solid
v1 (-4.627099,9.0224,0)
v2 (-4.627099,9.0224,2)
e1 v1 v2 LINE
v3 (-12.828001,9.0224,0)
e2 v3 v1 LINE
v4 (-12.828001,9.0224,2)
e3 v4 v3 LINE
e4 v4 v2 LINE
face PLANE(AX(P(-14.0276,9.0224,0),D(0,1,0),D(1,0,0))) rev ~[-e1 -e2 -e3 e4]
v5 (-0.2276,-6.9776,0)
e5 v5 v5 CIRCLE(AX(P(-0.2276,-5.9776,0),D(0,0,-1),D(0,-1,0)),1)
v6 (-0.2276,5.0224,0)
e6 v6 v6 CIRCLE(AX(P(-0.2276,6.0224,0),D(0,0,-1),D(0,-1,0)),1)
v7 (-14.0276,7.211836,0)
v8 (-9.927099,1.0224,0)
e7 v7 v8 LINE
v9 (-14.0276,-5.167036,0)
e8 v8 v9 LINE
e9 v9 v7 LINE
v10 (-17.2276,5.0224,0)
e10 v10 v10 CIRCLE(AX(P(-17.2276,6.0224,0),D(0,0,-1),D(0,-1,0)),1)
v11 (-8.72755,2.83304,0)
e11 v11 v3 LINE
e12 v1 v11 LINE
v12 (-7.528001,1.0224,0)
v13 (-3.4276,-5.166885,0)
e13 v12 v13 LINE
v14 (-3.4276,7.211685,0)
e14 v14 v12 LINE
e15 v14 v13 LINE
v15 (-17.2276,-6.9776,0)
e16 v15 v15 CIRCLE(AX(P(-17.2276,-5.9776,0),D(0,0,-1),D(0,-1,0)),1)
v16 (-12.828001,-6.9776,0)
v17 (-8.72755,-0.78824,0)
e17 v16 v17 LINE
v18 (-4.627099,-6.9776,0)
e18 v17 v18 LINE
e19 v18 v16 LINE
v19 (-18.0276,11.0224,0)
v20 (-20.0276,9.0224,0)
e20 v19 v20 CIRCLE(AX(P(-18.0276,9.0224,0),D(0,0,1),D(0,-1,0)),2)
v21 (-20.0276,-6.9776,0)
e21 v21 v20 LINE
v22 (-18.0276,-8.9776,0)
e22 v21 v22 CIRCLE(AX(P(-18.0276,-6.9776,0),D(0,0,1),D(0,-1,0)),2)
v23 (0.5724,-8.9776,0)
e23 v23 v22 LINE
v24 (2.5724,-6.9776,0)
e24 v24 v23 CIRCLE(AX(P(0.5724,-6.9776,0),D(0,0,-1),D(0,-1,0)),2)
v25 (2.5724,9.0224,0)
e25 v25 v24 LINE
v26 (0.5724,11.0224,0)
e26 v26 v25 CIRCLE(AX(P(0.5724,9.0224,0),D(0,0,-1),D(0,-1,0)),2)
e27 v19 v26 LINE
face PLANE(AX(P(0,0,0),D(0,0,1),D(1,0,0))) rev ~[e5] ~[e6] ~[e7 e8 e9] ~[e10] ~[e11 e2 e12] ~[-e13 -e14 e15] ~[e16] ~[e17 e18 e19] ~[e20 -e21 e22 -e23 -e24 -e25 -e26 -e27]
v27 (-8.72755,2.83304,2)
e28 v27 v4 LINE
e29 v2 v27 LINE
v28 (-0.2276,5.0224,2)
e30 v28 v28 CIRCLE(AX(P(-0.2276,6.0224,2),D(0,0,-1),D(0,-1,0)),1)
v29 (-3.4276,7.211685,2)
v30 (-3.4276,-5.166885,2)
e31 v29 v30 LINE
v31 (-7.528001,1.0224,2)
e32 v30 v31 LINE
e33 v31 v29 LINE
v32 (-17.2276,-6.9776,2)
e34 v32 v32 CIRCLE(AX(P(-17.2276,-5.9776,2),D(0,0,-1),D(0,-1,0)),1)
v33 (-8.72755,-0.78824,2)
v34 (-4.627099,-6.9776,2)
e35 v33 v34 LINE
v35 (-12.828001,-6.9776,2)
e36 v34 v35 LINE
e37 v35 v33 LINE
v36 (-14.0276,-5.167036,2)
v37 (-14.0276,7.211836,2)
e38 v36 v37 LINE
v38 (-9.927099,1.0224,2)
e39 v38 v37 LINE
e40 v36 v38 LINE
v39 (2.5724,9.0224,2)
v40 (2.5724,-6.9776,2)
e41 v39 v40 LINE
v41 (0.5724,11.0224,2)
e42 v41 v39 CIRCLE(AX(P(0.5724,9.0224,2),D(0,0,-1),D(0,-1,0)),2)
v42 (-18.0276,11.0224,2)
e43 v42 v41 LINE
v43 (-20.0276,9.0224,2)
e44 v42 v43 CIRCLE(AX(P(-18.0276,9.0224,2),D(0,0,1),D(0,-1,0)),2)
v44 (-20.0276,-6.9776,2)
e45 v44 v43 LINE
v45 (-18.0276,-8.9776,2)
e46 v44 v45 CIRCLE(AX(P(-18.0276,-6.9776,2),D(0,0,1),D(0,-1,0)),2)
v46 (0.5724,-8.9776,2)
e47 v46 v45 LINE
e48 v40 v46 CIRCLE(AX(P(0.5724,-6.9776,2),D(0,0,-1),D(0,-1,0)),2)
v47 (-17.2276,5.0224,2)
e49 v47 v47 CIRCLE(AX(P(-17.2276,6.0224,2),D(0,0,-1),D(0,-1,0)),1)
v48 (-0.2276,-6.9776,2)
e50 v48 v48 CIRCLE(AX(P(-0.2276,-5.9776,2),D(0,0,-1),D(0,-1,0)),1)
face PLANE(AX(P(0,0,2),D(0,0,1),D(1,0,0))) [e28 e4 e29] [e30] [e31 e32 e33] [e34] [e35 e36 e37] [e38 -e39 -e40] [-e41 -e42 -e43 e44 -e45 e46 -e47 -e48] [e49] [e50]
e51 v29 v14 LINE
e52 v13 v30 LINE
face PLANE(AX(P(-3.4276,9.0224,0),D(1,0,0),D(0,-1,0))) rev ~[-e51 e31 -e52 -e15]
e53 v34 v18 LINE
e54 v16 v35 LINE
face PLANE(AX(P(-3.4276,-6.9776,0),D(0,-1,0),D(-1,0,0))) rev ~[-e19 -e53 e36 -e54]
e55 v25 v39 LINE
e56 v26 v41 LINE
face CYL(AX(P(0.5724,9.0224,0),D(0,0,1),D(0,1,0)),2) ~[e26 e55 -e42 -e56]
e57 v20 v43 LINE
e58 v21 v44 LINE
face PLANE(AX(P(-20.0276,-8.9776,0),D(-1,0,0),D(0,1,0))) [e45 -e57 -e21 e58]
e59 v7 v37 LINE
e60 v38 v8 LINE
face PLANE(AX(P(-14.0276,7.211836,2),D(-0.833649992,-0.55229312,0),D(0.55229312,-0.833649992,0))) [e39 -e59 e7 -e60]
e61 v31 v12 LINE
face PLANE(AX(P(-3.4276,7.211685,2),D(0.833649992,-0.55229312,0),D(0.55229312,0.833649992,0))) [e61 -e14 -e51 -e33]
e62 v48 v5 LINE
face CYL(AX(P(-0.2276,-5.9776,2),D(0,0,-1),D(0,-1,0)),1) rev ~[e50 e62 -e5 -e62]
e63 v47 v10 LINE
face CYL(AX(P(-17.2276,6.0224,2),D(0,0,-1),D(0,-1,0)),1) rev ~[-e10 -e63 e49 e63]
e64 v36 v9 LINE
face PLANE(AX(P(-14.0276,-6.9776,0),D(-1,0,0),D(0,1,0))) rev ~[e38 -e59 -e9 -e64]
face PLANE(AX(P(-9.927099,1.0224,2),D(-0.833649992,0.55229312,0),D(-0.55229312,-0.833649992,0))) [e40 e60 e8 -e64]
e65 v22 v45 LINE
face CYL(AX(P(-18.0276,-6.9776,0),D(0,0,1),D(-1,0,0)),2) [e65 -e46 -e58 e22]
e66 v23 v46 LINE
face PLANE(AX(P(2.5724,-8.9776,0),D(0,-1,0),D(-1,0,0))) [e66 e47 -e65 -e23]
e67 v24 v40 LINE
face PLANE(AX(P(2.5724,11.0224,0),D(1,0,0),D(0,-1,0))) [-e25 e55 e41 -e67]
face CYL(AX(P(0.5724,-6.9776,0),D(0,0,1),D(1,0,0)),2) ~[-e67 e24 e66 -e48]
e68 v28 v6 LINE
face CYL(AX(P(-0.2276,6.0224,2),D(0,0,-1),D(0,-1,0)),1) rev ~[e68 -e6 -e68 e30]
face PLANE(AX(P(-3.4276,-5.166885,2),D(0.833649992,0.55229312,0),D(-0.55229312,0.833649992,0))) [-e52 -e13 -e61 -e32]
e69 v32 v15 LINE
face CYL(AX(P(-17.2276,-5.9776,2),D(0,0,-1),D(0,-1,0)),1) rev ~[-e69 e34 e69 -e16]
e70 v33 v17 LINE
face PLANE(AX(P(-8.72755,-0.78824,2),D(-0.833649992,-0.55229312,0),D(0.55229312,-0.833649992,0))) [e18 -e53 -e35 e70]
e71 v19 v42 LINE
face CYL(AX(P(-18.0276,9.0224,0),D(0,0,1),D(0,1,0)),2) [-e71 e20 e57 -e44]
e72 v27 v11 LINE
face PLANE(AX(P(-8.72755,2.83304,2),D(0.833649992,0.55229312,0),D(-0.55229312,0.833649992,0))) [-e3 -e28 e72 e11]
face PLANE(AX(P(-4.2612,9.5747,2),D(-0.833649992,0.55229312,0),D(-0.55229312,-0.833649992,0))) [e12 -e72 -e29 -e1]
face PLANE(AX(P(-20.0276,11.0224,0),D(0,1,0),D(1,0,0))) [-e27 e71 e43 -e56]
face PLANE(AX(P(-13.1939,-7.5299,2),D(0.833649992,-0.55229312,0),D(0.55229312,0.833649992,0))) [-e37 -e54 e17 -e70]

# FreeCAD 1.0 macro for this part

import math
import FreeCAD as App
import Part
import Sketcher

V = App.Vector
Q = App.Units.Quantity


def edges_at(feature, points):
    """Names of the edges that pass closest to the given points."""
    edges = feature.Shape.Edges
    near = lambda p: min(range(len(edges)), key=lambda i: edges[i].distToShape(Part.Vertex(*p))[0])
    return sorted({f"Edge{near(p) + 1}" for p in points})


def add_polygon(sketch, points):
    """Adds a closed chain of lines whose ends are joined by coincident constraints."""
    first, n = sketch.GeometryCount, len(points)
    for a, b in zip(points, points[1:] + points[:1]):
        sketch.addGeometry(Part.LineSegment(App.Vector(*a, 0), App.Vector(*b, 0)), False)
    for i in range(n):
        sketch.addConstraint(Sketcher.Constraint("Coincident", first + i, 2, first + (i + 1) % n, 1))

doc = App.newDocument("Part")
params = doc.addObject("Spreadsheet::Sheet", "Params")
for row, (alias, value) in enumerate([
    ("sketch1_height", "20 mm"),
    ("sketch1_width", "22.6 mm"),
    ("pad1_length", "2 mm"),
    ("sketch2_diameter", "2 mm"),
    ("hole_diameter", "2 mm"),
    ("hole_depth", "10 mm"),
    ("sketch3_radius", "1 mm"),
    ("pad2_length", "2 mm"),
    ("fillet_radius", "2 mm"),
], start=1):
    params.set(f"A{row}", alias)
    params.set(f"B{row}", "=" + value)
    params.setAlias(f"B{row}", alias)

body = doc.addObject("PartDesign::Body", "Body")

# Sketch on XY plane
sketch1 = body.newObject("Sketcher::SketchObject", "Sketch")
sketch1.AttachmentSupport = (doc.getObject("XY_Plane"), [""])
sketch1.MapMode = "FlatFace"
add_polygon(sketch1, [(3, 11), (-20, 11), (-20, -9), (3, -9)])  # lines 0-3
add_polygon(sketch1, [(-14, -7), (-14, 9), (-3, 9), (-3, -7)])  # lines 4-7
sketch1.addConstraint(Sketcher.Constraint("Horizontal", 0))
sketch1.addConstraint(Sketcher.Constraint("Vertical", 1))
sketch1.addConstraint(Sketcher.Constraint("Horizontal", 2))
sketch1.addConstraint(Sketcher.Constraint("Vertical", 3))
sketch1.addConstraint(Sketcher.Constraint("Vertical", 4))
sketch1.addConstraint(Sketcher.Constraint("Horizontal", 5))
sketch1.addConstraint(Sketcher.Constraint("Vertical", 6))
sketch1.addConstraint(Sketcher.Constraint("Horizontal", 7))
sketch1.addConstraint(Sketcher.Constraint("DistanceY", 1, 2, 1, 1, Q("20 mm")))
sketch1.addConstraint(Sketcher.Constraint("DistanceX", 0, 2, 0, 1, Q("22.6 mm")))
sketch1.addConstraint(Sketcher.Constraint("DistanceX", 0, 2, 4, 2, Q("6 mm")))
sketch1.addConstraint(Sketcher.Constraint("DistanceY", 4, 2, 0, 2, Q("2 mm")))
sketch1.addConstraint(Sketcher.Constraint("DistanceX", 5, 2, 3, 2, Q("6 mm")))
sketch1.addConstraint(Sketcher.Constraint("DistanceY", 2, 2, 6, 2, Q("2 mm")))
sketch1.addConstraint(Sketcher.Constraint("DistanceX", 0, 2, -1, 1, Q("20.0276 mm")))
sketch1.addConstraint(Sketcher.Constraint("DistanceY", -1, 1, 0, 2, Q("11.0224 mm")))
sketch1.setExpression("Constraints[16]", "Params.sketch1_height")
sketch1.setExpression("Constraints[17]", "Params.sketch1_width")
pad1 = body.newObject("PartDesign::Pad", "Pad")
pad1.Profile = sketch1
pad1.setExpression("Length", "Params.pad1_length")

# Sketch on XY plane
sketch2 = body.newObject("Sketcher::SketchObject", "Sketch001")
sketch2.AttachmentSupport = (doc.getObject("XY_Plane"), [""])
sketch2.MapMode = "FlatFace"
sketch2.AttachmentOffset = App.Placement(V(0, 0, 2), App.Rotation())
sketch2.addGeometry(Part.Circle(V(-17.2, 6, 0), V(0, 0, 1), 1), False)
sketch2.addGeometry(Part.Circle(V(-17.2, -6, 0), V(0, 0, 1), 1), False)
sketch2.addGeometry(Part.Circle(V(-0.2, 6, 0), V(0, 0, 1), 1), False)
sketch2.addGeometry(Part.Circle(V(-0.2, -6, 0), V(0, 0, 1), 1), False)
sketch2.addConstraint(Sketcher.Constraint("Equal", 0, 1))
sketch2.addConstraint(Sketcher.Constraint("Equal", 1, 2))
sketch2.addConstraint(Sketcher.Constraint("Equal", 2, 3))
sketch2.addConstraint(Sketcher.Constraint("Horizontal", 0, 3, 2, 3))
sketch2.addConstraint(Sketcher.Constraint("Horizontal", 1, 3, 3, 3))
sketch2.addConstraint(Sketcher.Constraint("Vertical", 0, 3, 1, 3))
sketch2.addConstraint(Sketcher.Constraint("Vertical", 2, 3, 3, 3))
sketch2.addConstraint(Sketcher.Constraint("Diameter", 0, Q("2 mm")))
sketch2.addConstraint(Sketcher.Constraint("DistanceY", 1, 3, 0, 3, Q("12 mm")))
sketch2.addConstraint(Sketcher.Constraint("DistanceX", 0, 3, 2, 3, Q("17 mm")))
sketch2.addConstraint(Sketcher.Constraint("DistanceX", 0, 3, -1, 1, Q("17.2276 mm")))
sketch2.addConstraint(Sketcher.Constraint("DistanceY", -1, 1, 0, 3, Q("6.0224 mm")))
sketch2.setExpression("Constraints[7]", "Params.sketch2_diameter")
doc.recompute()
hole = body.newObject("PartDesign::Hole", "Hole")
hole.Profile = sketch2
hole.ThreadType = "None"
hole.setExpression("Diameter", "Params.hole_diameter")
hole.DepthType = "Dimension"
hole.setExpression("Depth", "Params.hole_depth")
hole.DrillPoint = "Angled"
hole.DrillPointAngle = 118

# Sketch on XY plane
sketch3 = body.newObject("Sketcher::SketchObject", "Sketch002")
sketch3.AttachmentSupport = (doc.getObject("XY_Plane"), [""])
sketch3.MapMode = "FlatFace"
sketch3.AttachmentOffset = App.Placement(V(0, 0, 2), App.Rotation())
sketch3.addGeometry(Part.LineSegment(V(-9.9, 1, 0), V(-14.9, -6.4, 0)), False)
sketch3.addGeometry(Part.ArcOfCircle(Part.Circle(V(-14, -7, 0), V(0, 0, 1), 1), math.radians(146), math.radians(326)), False)
sketch3.addGeometry(Part.LineSegment(V(-13.2, -7.5, 0), V(-8.7, -0.8, 0)), False)
sketch3.addGeometry(Part.LineSegment(V(-8.7, -0.8, 0), V(-4.3, -7.5, 0)), False)
sketch3.addGeometry(Part.ArcOfCircle(Part.Circle(V(-3.4, -7, 0), V(0, 0, 1), 1), math.radians(-146), math.radians(34)), False)
sketch3.addGeometry(Part.LineSegment(V(-2.6, -6.4, 0), V(-7.5, 1, 0)), False)
sketch3.addGeometry(Part.LineSegment(V(-7.5, 1, 0), V(-2.6, 8.5, 0)), False)
sketch3.addGeometry(Part.ArcOfCircle(Part.Circle(V(-3.4, 9, 0), V(0, 0, 1), 1), math.radians(-34), math.radians(146)), False)
sketch3.addGeometry(Part.LineSegment(V(-4.3, 9.6, 0), V(-8.7, 2.8, 0)), False)
sketch3.addGeometry(Part.LineSegment(V(-8.7, 2.8, 0), V(-13.2, 9.6, 0)), False)
sketch3.addGeometry(Part.ArcOfCircle(Part.Circle(V(-14, 9, 0), V(0, 0, 1), 1), math.radians(34), math.radians(214)), False)
sketch3.addGeometry(Part.LineSegment(V(-14.9, 8.5, 0), V(-9.9, 1, 0)), False)
sketch3.addConstraint(Sketcher.Constraint("Tangent", 0, 2, 1, 1))
sketch3.addConstraint(Sketcher.Constraint("Tangent", 1, 2, 2, 1))
sketch3.addConstraint(Sketcher.Constraint("Coincident", 2, 2, 3, 1))
sketch3.addConstraint(Sketcher.Constraint("Tangent", 3, 2, 4, 1))
sketch3.addConstraint(Sketcher.Constraint("Tangent", 4, 2, 5, 1))
sketch3.addConstraint(Sketcher.Constraint("Coincident", 5, 2, 6, 1))
sketch3.addConstraint(Sketcher.Constraint("Tangent", 6, 2, 7, 1))
sketch3.addConstraint(Sketcher.Constraint("Tangent", 7, 2, 8, 1))
sketch3.addConstraint(Sketcher.Constraint("Coincident", 8, 2, 9, 1))
sketch3.addConstraint(Sketcher.Constraint("Tangent", 9, 2, 10, 1))
sketch3.addConstraint(Sketcher.Constraint("Tangent", 10, 2, 11, 1))
sketch3.addConstraint(Sketcher.Constraint("Coincident", 11, 2, 0, 1))
sketch3.addConstraint(Sketcher.Constraint("Equal", 1, 4))
sketch3.addConstraint(Sketcher.Constraint("Equal", 4, 7))
sketch3.addConstraint(Sketcher.Constraint("Equal", 7, 10))
sketch3.addConstraint(Sketcher.Constraint("Parallel", 0, 2))
sketch3.addConstraint(Sketcher.Constraint("Parallel", 3, 5))
sketch3.addConstraint(Sketcher.Constraint("Parallel", 2, 6))
sketch3.addConstraint(Sketcher.Constraint("Parallel", 6, 8))
sketch3.addConstraint(Sketcher.Constraint("Parallel", 5, 9))
sketch3.addConstraint(Sketcher.Constraint("Parallel", 9, 11))
sketch3.addConstraint(Sketcher.Constraint("Horizontal", 1, 3, 4, 3))
sketch3.addConstraint(Sketcher.Constraint("Horizontal", 7, 3, 10, 3))
sketch3.addConstraint(Sketcher.Constraint("Horizontal", 1, 2, 3, 2))
sketch3.addConstraint(Sketcher.Constraint("Horizontal", 5, 2, 11, 2))
sketch3.addConstraint(Sketcher.Constraint("Vertical", 4, 3, 7, 3))
sketch3.addConstraint(Sketcher.Constraint("Radius", 1, Q("1 mm")))
sketch3.addConstraint(Sketcher.Constraint("DistanceY", 4, 3, 7, 3, Q("16 mm")))
sketch3.addConstraint(Sketcher.Constraint("DistanceX", 1, 3, 4, 3, Q("10.6 mm")))
sketch3.addConstraint(Sketcher.Constraint("DistanceY", 3, 2, -1, 1, Q("7.53 mm")))
sketch3.addConstraint(Sketcher.Constraint("Distance", 2, Q("8.087 mm")))
sketch3.addConstraint(Sketcher.Constraint("DistanceX", 1, 2, -1, 1, Q("13.194 mm")))
sketch3.setExpression("Constraints[26]", "Params.sketch3_radius")
pad2 = body.newObject("PartDesign::Pad", "Pad001")
pad2.Profile = sketch3
pad2.setExpression("Length", "Params.pad2_length")
pad2.Reversed = True
doc.recompute()

fillet = body.newObject("PartDesign::Fillet", "Fillet")
fillet.Base = (pad2, edges_at(pad2, [
    (-20.028, 11.022, 1),
    (2.572, 11.022, 1),
    (2.572, -8.978, 1),
    (-20.028, -8.978, 1),
]))
fillet.setExpression("Radius", "Params.fillet_radius")

doc.recompute()
